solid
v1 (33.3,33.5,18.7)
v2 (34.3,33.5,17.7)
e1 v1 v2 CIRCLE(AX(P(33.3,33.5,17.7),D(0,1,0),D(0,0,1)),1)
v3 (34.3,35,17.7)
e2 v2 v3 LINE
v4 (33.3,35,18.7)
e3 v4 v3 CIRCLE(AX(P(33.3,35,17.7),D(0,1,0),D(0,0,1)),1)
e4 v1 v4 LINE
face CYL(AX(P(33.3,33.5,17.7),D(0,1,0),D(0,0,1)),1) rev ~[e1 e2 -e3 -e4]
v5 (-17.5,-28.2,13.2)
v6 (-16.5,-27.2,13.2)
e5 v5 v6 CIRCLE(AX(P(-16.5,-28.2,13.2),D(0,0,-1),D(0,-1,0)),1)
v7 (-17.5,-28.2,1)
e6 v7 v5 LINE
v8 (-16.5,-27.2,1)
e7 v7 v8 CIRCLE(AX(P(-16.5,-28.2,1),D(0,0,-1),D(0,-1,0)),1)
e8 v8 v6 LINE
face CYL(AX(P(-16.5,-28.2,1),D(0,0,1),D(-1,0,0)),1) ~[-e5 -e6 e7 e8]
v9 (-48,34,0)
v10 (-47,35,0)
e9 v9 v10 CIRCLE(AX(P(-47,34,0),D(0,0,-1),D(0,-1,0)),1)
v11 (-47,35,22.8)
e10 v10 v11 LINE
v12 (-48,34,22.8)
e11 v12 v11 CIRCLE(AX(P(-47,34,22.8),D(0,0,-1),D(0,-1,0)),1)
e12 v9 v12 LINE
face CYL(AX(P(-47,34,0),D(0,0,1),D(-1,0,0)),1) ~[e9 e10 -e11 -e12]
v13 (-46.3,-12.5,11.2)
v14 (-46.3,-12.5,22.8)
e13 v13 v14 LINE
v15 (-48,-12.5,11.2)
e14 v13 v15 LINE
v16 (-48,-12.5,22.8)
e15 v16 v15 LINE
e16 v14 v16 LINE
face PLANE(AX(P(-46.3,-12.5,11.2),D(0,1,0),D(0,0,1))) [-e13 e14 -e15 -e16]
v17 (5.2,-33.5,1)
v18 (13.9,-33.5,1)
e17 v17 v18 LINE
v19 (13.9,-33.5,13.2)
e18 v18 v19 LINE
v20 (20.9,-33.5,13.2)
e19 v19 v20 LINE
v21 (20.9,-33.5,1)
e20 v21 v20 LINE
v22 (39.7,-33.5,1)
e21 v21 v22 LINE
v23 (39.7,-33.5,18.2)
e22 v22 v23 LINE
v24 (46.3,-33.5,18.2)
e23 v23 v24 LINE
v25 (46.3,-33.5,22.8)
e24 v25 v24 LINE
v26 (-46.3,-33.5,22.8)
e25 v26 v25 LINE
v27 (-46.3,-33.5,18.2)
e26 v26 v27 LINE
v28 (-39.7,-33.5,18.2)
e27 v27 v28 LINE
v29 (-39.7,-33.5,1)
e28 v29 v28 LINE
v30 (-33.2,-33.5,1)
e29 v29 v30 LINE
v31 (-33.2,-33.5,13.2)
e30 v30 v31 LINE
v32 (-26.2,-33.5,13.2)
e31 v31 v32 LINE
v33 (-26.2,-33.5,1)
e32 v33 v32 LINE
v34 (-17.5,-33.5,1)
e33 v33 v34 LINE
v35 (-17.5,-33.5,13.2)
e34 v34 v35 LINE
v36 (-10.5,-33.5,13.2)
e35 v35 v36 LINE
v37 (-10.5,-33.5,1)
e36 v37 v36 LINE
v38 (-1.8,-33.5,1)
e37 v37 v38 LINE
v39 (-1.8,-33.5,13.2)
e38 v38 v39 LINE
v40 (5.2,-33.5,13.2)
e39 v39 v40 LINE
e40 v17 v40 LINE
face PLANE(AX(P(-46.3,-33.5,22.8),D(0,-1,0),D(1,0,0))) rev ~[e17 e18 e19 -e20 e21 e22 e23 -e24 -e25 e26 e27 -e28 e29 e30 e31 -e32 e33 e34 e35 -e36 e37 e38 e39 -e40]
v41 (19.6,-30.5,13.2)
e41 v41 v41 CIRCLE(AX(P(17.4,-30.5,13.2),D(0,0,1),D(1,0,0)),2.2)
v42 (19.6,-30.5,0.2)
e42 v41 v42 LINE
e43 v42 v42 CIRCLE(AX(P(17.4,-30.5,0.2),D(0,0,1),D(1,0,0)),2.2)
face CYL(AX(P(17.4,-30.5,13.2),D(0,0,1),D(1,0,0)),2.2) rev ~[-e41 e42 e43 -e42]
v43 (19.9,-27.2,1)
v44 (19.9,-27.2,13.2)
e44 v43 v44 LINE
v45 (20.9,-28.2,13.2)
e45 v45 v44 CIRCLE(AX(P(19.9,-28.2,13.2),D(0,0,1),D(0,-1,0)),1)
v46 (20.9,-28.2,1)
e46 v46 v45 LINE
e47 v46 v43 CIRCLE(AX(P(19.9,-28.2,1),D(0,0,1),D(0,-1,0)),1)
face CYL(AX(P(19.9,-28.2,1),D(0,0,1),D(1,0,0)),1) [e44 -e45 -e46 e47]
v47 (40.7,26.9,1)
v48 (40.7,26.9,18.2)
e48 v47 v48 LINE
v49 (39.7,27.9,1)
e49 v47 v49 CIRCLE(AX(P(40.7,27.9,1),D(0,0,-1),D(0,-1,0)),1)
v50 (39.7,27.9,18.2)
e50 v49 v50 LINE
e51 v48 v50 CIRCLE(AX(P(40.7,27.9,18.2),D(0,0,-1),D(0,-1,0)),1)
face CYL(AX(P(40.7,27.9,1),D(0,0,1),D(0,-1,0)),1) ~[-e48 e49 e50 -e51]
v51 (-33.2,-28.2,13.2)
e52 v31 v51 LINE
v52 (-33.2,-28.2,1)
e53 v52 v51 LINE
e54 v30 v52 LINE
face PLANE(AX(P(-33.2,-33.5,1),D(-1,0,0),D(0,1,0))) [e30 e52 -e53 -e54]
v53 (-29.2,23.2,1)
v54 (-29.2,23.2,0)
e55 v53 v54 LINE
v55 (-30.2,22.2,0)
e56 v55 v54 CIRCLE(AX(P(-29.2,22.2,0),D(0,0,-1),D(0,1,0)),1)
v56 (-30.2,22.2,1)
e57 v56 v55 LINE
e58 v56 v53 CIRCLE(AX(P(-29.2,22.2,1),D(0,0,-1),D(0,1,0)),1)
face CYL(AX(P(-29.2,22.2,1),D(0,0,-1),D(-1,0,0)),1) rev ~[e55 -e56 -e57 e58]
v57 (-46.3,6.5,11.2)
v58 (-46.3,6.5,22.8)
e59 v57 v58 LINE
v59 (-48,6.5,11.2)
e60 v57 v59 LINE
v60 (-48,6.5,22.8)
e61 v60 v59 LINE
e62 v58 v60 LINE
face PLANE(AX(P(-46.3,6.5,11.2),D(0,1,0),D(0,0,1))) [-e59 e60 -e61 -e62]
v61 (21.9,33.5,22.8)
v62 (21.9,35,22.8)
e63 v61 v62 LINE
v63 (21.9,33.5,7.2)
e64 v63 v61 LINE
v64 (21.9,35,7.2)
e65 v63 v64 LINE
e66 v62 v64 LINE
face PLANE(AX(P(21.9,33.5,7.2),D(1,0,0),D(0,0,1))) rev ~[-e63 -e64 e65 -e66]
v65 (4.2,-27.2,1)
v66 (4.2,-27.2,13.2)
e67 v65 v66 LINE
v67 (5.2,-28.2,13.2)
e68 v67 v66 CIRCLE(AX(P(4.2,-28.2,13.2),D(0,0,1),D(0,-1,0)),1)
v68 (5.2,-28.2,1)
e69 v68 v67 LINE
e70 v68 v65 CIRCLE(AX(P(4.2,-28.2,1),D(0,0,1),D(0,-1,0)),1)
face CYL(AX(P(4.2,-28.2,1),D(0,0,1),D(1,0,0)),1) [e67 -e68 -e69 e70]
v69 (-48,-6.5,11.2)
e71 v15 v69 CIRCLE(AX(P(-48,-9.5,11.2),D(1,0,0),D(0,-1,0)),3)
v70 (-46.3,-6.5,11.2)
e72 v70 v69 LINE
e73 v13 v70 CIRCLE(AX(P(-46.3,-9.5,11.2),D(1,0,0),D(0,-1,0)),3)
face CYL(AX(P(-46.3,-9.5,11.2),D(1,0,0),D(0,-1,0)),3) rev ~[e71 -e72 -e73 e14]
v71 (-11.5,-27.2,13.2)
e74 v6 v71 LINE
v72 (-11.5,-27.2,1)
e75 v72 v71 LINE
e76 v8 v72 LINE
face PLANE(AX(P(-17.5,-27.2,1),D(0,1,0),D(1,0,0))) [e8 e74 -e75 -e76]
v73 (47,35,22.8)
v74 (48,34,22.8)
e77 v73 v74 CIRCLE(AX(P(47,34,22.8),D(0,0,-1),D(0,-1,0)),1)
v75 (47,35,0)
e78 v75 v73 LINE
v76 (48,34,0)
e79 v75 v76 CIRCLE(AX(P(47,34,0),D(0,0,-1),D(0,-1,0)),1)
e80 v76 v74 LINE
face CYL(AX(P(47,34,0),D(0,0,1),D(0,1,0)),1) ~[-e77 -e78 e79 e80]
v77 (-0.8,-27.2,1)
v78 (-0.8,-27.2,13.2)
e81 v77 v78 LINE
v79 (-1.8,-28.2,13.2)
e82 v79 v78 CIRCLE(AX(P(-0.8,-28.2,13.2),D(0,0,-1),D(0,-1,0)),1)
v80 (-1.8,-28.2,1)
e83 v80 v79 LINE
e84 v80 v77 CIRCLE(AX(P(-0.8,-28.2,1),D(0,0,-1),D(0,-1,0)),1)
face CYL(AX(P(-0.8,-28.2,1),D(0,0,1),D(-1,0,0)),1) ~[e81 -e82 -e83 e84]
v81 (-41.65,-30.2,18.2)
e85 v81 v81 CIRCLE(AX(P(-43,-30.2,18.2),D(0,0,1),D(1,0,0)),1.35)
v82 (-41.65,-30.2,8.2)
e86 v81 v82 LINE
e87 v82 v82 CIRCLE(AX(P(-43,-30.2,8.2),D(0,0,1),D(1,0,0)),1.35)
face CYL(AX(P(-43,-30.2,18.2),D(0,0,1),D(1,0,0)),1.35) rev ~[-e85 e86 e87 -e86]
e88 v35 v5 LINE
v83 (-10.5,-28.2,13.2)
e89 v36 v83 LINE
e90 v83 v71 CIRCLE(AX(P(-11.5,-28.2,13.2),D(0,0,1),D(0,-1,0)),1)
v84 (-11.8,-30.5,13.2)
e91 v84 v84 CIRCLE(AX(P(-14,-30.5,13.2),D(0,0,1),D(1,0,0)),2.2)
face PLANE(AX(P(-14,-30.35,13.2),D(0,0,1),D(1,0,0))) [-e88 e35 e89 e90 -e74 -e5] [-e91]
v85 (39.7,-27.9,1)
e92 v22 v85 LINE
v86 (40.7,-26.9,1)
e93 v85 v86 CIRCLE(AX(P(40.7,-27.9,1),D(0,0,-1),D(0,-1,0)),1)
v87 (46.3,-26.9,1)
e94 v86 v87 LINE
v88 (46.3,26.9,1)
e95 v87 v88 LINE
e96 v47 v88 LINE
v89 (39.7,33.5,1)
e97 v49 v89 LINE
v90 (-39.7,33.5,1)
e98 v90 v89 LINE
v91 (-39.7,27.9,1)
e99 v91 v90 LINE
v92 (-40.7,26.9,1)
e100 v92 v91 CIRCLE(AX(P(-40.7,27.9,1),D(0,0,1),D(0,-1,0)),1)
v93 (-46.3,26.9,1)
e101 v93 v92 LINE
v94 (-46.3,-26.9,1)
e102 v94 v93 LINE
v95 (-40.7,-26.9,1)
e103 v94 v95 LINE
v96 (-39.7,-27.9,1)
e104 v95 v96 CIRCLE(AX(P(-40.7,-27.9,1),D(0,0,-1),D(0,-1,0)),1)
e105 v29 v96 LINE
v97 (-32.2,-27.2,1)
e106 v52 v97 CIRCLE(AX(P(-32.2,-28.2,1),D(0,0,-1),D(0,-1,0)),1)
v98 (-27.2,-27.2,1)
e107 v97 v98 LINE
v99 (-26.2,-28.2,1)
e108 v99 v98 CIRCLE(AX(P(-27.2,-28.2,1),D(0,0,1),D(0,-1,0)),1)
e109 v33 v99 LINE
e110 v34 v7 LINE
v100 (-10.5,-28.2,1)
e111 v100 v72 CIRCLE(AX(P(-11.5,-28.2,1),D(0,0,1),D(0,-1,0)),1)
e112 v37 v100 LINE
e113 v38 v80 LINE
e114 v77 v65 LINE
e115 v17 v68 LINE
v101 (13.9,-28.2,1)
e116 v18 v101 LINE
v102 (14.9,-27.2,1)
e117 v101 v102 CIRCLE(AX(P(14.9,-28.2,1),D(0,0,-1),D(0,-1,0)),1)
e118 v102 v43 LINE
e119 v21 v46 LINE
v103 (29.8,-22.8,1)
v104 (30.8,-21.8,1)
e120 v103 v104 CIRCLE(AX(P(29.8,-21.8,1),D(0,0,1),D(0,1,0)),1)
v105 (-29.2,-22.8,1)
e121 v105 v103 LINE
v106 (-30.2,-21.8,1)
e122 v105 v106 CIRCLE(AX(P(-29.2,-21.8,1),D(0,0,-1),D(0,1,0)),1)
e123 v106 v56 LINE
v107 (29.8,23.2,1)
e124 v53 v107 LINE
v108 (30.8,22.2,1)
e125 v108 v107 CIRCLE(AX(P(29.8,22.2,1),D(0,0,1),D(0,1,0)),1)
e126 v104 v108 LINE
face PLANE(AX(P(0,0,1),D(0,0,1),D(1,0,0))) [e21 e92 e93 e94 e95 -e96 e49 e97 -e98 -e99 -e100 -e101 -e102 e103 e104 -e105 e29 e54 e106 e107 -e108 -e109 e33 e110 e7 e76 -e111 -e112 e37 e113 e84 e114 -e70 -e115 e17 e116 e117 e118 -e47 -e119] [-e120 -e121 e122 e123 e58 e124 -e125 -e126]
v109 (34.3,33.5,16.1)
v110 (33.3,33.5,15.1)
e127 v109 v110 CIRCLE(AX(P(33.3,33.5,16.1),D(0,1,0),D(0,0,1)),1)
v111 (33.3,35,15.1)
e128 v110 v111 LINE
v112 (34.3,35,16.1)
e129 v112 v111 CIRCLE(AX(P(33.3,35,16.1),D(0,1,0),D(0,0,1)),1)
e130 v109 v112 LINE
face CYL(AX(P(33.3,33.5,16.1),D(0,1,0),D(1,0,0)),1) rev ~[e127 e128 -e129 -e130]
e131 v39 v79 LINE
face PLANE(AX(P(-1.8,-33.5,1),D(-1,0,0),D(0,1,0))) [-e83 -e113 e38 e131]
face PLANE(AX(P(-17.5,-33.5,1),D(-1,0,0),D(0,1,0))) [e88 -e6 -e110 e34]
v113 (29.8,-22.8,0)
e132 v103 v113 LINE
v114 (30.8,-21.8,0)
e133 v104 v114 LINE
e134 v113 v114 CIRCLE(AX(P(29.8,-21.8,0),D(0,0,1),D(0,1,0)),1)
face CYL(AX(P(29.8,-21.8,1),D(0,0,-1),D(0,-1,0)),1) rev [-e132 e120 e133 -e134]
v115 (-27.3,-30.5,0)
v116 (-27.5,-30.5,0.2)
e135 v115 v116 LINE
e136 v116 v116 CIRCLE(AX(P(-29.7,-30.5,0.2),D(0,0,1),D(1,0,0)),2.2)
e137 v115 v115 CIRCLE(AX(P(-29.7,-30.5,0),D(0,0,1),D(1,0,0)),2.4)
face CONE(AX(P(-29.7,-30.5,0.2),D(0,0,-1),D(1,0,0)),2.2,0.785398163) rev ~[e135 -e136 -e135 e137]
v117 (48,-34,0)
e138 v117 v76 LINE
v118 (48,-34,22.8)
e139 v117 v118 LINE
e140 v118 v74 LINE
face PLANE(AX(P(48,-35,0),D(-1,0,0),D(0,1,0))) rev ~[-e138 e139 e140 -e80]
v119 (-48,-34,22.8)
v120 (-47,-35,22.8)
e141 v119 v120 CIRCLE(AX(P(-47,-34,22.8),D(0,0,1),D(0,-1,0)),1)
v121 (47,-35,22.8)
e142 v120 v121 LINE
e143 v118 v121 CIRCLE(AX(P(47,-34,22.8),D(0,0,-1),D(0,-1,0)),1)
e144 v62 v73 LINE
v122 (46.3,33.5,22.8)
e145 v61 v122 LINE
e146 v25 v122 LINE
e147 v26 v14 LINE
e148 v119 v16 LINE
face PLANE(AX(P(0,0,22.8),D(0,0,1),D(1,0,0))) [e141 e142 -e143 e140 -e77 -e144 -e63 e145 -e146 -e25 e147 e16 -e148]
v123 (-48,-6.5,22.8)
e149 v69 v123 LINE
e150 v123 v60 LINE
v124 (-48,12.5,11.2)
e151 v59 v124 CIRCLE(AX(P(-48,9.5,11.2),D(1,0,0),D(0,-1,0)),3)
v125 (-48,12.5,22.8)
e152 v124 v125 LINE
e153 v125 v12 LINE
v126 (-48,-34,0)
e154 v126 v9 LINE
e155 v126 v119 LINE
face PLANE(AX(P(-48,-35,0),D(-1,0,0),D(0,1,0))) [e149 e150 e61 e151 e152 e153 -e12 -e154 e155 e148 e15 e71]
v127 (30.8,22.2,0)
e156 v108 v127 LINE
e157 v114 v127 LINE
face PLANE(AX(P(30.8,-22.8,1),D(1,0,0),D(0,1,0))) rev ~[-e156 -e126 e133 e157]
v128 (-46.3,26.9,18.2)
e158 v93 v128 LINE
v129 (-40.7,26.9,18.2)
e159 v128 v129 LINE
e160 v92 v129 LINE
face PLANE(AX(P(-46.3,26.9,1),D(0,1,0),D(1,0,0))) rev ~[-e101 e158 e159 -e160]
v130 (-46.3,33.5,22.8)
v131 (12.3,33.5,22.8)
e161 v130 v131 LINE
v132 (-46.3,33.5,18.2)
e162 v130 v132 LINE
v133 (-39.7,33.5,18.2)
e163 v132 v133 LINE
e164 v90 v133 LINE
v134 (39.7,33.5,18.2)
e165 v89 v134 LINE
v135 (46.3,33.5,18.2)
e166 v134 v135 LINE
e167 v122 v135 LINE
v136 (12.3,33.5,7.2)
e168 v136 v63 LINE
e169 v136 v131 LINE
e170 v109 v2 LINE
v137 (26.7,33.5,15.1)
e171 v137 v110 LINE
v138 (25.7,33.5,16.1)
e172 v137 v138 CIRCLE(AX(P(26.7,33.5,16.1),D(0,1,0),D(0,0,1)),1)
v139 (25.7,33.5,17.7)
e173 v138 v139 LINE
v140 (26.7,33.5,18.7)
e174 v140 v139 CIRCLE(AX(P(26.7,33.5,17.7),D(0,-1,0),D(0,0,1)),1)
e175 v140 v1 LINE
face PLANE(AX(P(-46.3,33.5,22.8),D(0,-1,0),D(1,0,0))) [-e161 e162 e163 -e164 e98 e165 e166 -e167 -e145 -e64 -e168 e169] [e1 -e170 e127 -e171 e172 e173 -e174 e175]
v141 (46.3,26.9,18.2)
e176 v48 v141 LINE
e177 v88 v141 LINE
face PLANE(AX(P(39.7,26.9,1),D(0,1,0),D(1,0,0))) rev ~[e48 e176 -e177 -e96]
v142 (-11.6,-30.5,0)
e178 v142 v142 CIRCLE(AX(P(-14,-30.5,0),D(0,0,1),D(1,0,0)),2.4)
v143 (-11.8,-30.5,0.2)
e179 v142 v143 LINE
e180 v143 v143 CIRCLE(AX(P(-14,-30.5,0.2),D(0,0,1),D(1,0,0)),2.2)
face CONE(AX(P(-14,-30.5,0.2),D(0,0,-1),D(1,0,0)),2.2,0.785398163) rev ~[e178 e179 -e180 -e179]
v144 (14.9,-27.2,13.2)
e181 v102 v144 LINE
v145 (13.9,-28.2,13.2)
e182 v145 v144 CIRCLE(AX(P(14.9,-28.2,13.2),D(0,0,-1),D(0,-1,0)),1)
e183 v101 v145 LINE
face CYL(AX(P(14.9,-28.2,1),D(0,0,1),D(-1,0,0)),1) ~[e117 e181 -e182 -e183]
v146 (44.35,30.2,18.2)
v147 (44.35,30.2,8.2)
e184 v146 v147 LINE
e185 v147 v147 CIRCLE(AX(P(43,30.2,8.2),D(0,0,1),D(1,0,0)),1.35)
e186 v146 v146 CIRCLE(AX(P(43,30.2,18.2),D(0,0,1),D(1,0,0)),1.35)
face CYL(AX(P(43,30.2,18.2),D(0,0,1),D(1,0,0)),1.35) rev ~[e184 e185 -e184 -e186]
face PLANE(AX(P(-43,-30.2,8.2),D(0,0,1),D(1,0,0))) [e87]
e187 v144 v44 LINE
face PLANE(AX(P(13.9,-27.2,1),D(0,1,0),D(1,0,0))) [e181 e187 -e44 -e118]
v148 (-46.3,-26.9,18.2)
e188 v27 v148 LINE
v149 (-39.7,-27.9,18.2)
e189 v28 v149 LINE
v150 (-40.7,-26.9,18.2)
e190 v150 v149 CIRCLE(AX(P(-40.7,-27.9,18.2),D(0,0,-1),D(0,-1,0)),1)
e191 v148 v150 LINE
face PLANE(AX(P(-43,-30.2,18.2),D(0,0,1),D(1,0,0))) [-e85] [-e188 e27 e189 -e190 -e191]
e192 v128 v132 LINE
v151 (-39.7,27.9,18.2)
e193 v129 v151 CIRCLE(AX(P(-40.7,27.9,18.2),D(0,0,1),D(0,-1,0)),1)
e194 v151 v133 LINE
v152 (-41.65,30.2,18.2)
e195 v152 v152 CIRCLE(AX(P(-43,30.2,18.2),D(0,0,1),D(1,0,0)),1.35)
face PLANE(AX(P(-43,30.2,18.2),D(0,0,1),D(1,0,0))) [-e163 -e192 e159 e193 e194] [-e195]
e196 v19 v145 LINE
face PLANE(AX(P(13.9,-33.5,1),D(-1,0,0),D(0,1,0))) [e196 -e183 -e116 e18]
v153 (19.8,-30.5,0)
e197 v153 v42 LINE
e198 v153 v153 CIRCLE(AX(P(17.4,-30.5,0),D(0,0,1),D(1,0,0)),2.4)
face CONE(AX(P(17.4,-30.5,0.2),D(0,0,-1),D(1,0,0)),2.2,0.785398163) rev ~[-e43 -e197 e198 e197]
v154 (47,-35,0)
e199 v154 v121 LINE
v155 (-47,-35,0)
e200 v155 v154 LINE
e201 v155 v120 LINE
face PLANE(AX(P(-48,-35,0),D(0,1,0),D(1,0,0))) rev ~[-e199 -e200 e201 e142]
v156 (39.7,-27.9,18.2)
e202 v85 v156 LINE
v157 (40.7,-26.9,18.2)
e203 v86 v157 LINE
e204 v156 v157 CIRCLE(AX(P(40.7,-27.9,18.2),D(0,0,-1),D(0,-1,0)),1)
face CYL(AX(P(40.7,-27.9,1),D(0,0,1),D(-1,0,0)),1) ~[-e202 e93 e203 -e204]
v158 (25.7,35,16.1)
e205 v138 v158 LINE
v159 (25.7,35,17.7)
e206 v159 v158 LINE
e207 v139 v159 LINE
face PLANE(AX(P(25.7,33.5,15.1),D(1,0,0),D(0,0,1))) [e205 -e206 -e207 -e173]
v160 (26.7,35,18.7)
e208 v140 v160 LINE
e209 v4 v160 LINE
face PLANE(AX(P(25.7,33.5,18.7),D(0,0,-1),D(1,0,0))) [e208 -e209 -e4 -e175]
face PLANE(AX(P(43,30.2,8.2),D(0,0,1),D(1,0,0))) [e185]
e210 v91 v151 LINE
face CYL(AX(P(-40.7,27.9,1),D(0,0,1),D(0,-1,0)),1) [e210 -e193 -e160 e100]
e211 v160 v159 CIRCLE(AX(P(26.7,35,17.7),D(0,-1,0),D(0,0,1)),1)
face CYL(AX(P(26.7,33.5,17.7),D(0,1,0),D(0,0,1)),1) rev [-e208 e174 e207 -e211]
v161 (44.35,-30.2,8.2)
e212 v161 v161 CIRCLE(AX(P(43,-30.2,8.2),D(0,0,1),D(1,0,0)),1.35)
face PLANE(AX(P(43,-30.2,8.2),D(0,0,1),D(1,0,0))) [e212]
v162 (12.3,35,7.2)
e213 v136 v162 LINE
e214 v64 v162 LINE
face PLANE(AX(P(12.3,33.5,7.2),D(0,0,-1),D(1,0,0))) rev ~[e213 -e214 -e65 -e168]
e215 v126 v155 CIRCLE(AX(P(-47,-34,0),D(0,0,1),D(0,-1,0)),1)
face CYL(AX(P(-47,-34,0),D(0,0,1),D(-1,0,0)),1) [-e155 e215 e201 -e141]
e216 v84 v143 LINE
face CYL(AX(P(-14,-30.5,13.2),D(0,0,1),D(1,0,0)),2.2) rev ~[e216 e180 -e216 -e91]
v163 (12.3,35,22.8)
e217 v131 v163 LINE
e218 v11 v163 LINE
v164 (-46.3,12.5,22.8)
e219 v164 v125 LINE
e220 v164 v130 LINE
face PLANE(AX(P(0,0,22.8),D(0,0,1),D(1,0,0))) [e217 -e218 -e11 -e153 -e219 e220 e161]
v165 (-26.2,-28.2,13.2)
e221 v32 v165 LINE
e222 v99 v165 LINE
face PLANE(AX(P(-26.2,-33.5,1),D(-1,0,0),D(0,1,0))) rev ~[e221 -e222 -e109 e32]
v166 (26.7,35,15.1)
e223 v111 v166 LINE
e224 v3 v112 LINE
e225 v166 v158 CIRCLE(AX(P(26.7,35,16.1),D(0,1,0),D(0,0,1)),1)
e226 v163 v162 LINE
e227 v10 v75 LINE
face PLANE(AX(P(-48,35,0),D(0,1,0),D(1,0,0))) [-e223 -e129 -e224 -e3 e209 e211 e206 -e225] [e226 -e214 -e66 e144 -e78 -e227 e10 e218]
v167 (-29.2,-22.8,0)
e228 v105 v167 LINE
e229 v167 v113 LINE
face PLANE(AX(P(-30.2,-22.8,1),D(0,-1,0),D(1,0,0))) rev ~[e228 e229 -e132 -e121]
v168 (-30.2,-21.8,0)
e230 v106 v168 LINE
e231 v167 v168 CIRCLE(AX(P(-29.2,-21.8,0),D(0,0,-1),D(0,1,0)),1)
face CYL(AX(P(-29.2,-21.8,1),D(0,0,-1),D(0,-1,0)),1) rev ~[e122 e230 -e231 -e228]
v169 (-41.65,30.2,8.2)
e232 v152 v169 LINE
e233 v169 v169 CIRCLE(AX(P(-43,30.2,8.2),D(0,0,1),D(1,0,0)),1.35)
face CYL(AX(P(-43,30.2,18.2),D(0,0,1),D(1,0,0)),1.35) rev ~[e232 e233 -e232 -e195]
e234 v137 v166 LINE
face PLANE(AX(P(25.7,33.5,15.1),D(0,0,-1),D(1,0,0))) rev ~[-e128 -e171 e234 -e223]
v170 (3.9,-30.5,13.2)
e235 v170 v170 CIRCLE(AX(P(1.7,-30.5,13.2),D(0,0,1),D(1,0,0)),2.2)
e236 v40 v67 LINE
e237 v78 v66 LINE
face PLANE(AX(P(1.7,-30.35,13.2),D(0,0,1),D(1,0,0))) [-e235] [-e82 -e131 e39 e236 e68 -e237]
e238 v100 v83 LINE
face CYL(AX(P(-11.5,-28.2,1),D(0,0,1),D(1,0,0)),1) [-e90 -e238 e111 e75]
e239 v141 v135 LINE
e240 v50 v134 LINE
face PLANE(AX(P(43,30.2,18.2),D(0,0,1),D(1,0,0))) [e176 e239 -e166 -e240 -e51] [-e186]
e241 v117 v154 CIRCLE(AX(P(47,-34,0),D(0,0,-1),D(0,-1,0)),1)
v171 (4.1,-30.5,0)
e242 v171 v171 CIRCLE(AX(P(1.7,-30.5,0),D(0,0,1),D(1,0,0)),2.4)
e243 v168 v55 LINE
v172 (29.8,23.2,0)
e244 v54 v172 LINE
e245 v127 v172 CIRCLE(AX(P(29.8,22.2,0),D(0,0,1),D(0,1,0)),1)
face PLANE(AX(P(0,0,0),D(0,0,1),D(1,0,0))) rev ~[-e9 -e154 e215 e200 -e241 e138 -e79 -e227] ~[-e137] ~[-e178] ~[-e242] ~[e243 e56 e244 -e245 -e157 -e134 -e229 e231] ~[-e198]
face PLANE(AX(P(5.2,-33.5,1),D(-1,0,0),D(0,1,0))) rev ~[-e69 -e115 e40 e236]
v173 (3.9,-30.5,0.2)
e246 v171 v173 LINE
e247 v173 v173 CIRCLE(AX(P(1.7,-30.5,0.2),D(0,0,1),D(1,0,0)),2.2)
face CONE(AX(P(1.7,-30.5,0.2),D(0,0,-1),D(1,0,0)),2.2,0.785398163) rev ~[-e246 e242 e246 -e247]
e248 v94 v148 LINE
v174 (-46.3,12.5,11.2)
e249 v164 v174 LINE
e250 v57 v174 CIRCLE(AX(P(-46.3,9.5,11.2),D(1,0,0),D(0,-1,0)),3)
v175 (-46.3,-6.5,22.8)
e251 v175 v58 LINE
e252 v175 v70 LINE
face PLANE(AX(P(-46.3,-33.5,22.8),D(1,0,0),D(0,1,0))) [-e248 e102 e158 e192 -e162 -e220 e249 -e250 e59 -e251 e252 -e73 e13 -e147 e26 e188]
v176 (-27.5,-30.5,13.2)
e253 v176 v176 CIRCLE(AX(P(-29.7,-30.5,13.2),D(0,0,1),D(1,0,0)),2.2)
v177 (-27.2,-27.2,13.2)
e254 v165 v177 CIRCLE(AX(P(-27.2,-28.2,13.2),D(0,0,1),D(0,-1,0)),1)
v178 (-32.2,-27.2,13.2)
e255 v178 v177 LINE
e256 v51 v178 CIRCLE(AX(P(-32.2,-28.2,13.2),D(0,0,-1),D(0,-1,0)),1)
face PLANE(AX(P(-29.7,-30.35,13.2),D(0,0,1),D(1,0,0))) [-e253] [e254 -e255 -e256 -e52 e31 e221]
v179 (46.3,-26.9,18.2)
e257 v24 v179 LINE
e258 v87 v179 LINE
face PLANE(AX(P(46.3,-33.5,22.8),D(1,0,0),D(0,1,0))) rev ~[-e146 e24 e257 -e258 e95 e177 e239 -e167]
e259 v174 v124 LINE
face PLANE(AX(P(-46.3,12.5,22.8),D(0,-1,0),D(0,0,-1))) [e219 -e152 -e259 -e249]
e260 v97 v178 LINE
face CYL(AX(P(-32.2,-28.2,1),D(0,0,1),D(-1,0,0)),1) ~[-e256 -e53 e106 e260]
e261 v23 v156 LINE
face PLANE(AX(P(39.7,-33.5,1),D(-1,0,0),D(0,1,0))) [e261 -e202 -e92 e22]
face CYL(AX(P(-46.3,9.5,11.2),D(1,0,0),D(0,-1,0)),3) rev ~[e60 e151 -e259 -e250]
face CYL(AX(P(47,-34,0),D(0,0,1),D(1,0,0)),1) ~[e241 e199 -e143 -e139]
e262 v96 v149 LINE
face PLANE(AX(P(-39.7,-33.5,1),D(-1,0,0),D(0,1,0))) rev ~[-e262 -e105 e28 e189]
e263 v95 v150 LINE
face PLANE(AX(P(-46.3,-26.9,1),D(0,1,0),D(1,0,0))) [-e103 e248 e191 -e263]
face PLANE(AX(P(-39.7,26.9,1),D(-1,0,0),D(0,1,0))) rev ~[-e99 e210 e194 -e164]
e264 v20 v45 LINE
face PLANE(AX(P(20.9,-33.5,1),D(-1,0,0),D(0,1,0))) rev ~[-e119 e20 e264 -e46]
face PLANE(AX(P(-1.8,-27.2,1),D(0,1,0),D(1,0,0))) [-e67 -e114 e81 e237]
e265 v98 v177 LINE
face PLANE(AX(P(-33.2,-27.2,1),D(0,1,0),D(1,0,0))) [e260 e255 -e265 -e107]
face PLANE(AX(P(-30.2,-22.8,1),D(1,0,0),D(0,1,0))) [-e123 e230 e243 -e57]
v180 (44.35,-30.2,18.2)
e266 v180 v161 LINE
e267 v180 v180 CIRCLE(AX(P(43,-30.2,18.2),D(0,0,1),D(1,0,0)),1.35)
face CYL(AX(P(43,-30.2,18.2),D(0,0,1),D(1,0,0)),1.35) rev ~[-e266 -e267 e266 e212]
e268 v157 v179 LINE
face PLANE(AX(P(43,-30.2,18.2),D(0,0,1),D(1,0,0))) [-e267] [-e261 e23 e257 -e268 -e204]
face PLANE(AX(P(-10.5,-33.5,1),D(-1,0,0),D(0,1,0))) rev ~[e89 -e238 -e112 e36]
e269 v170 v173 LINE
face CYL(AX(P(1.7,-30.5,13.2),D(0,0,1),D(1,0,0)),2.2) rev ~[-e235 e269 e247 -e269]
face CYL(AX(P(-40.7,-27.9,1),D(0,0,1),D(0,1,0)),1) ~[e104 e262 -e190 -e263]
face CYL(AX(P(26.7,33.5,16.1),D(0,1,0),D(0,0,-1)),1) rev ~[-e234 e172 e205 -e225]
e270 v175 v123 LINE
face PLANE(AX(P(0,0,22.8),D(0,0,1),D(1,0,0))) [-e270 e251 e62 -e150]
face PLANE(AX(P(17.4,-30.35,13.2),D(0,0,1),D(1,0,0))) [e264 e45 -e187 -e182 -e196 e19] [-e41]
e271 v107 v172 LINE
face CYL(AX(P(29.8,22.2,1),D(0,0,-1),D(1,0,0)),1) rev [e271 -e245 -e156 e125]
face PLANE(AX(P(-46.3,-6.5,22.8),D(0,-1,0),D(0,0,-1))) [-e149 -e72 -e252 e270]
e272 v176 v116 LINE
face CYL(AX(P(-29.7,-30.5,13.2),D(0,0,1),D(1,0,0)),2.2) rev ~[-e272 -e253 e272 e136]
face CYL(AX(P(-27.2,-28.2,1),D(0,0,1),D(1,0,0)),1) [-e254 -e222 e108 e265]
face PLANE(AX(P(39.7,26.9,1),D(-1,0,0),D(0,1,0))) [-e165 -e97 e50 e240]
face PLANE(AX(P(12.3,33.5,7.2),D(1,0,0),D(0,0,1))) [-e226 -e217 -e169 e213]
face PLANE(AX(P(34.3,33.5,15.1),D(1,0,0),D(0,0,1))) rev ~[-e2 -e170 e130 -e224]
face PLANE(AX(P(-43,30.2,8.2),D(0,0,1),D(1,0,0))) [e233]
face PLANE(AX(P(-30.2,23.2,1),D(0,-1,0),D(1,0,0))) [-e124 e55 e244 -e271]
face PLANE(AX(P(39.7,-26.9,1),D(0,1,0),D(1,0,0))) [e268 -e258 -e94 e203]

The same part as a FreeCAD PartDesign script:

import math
import FreeCAD as App
import Part
import Sketcher

V = App.Vector


def edges_at(feature, points):
    """Names of the edges that pass closest to the given points."""
    edges = feature.Shape.Edges
    near = lambda p: min(range(len(edges)), key=lambda i: edges[i].distToShape(Part.Vertex(*p))[0])
    return sorted({f"Edge{near(p) + 1}" for p in points})

doc = App.newDocument("Part")
body = doc.addObject("PartDesign::Body", "Body")

sketch1 = body.newObject("Sketcher::SketchObject", "Sketch")
sketch1.AttachmentSupport = (doc.getObject("XY_Plane"), [""])
sketch1.MapMode = "FlatFace"
sketch1.addGeometry([
    Part.LineSegment(V(-48, 35, 0), V(-48, -35, 0)),
    Part.LineSegment(V(-48, -35, 0), V(48, -35, 0)),
    Part.LineSegment(V(48, -35, 0), V(48, 35, 0)),
    Part.LineSegment(V(48, 35, 0), V(-48, 35, 0)),
], False)
sketch1.addConstraint([
    Sketcher.Constraint("Coincident", 0, 2, 1, 1),
    Sketcher.Constraint("Coincident", 1, 2, 2, 1),
    Sketcher.Constraint("Coincident", 2, 2, 3, 1),
    Sketcher.Constraint("Coincident", 3, 2, 0, 1),
    Sketcher.Constraint("Vertical", 0),
    Sketcher.Constraint("Horizontal", 1),
    Sketcher.Constraint("Vertical", 2),
    Sketcher.Constraint("Horizontal", 3),
    Sketcher.Constraint("Symmetric", 0, 2, 2, 2, -1, 1),
    Sketcher.Constraint("DistanceX", 1, 1, 1, 2, 96.0),
    Sketcher.Constraint("DistanceY", 0, 2, 0, 1, 70.0),
])
pad1 = body.newObject("PartDesign::Pad", "Pad")
pad1.Profile = sketch1
pad1.Length = 22.8

sketch2 = body.newObject("Sketcher::SketchObject", "Sketch001")
sketch2.AttachmentSupport = (doc.getObject("XY_Plane"), [""])
sketch2.MapMode = "FlatFace"
sketch2.AttachmentOffset = App.Placement(V(0, 0, 22.8), App.Rotation())
sketch2.addGeometry([
    Part.LineSegment(V(-46, 34, 0), V(-46, -34, 0)),
    Part.LineSegment(V(-46, -34, 0), V(46, -34, 0)),
    Part.LineSegment(V(46, -34, 0), V(46, 34, 0)),
    Part.LineSegment(V(46, 34, 0), V(-46, 34, 0)),
], False)
sketch2.addConstraint([
    Sketcher.Constraint("Coincident", 0, 2, 1, 1),
    Sketcher.Constraint("Coincident", 1, 2, 2, 1),
    Sketcher.Constraint("Coincident", 2, 2, 3, 1),
    Sketcher.Constraint("Coincident", 3, 2, 0, 1),
    Sketcher.Constraint("Vertical", 0),
    Sketcher.Constraint("Horizontal", 1),
    Sketcher.Constraint("Vertical", 2),
    Sketcher.Constraint("Horizontal", 3),
    Sketcher.Constraint("Symmetric", 0, 2, 2, 2, -1, 1),
    Sketcher.Constraint("DistanceY", 0, 2, 0, 1, 67.0),
    Sketcher.Constraint("DistanceX", 1, 1, 1, 2, 92.6),
])
pocket1 = body.newObject("PartDesign::Pocket", "Pocket")
pocket1.Profile = sketch2
pocket1.Length = 21.8

sketch3 = body.newObject("Sketcher::SketchObject", "Sketch002")
sketch3.AttachmentSupport = (doc.getObject("XY_Plane"), [""])
sketch3.MapMode = "FlatFace"
sketch3.AttachmentOffset = App.Placement(V(0, 0, 1), App.Rotation())
sketch3.addGeometry([
    Part.LineSegment(V(-46, 34, 0), V(-46, 27, 0)),
    Part.LineSegment(V(-46, 27, 0), V(-40, 27, 0)),
    Part.LineSegment(V(-40, 27, 0), V(-40, 34, 0)),
    Part.LineSegment(V(-40, 34, 0), V(-46, 34, 0)),
    Part.LineSegment(V(40, 34, 0), V(40, 27, 0)),
    Part.LineSegment(V(40, 27, 0), V(46, 27, 0)),
    Part.LineSegment(V(46, 27, 0), V(46, 34, 0)),
    Part.LineSegment(V(46, 34, 0), V(40, 34, 0)),
    Part.LineSegment(V(40, -27, 0), V(40, -34, 0)),
    Part.LineSegment(V(40, -34, 0), V(46, -34, 0)),
    Part.LineSegment(V(46, -34, 0), V(46, -27, 0)),
    Part.LineSegment(V(46, -27, 0), V(40, -27, 0)),
    Part.LineSegment(V(-46, -27, 0), V(-46, -34, 0)),
    Part.LineSegment(V(-46, -34, 0), V(-40, -34, 0)),
    Part.LineSegment(V(-40, -34, 0), V(-40, -27, 0)),
    Part.LineSegment(V(-40, -27, 0), V(-46, -27, 0)),
], False)
sketch3.addConstraint([
    Sketcher.Constraint("Coincident", 0, 2, 1, 1),
    Sketcher.Constraint("Coincident", 1, 2, 2, 1),
    Sketcher.Constraint("Coincident", 2, 2, 3, 1),
    Sketcher.Constraint("Coincident", 3, 2, 0, 1),
    Sketcher.Constraint("Coincident", 4, 2, 5, 1),
    Sketcher.Constraint("Coincident", 5, 2, 6, 1),
    Sketcher.Constraint("Coincident", 6, 2, 7, 1),
    Sketcher.Constraint("Coincident", 7, 2, 4, 1),
    Sketcher.Constraint("Coincident", 8, 2, 9, 1),
    Sketcher.Constraint("Coincident", 9, 2, 10, 1),
    Sketcher.Constraint("Coincident", 10, 2, 11, 1),
    Sketcher.Constraint("Coincident", 11, 2, 8, 1),
    Sketcher.Constraint("Coincident", 12, 2, 13, 1),
    Sketcher.Constraint("Coincident", 13, 2, 14, 1),
    Sketcher.Constraint("Coincident", 14, 2, 15, 1),
    Sketcher.Constraint("Coincident", 15, 2, 12, 1),
    Sketcher.Constraint("Vertical", 0),
    Sketcher.Constraint("Horizontal", 1),
    Sketcher.Constraint("Vertical", 2),
    Sketcher.Constraint("Horizontal", 3),
    Sketcher.Constraint("Vertical", 4),
    Sketcher.Constraint("Horizontal", 5),
    Sketcher.Constraint("Vertical", 6),
    Sketcher.Constraint("Horizontal", 7),
    Sketcher.Constraint("Vertical", 8),
    Sketcher.Constraint("Horizontal", 9),
    Sketcher.Constraint("Vertical", 10),
    Sketcher.Constraint("Horizontal", 11),
    Sketcher.Constraint("Vertical", 12),
    Sketcher.Constraint("Horizontal", 13),
    Sketcher.Constraint("Vertical", 14),
    Sketcher.Constraint("Horizontal", 15),
    Sketcher.Constraint("Symmetric", 2, 2, 8, 2, -1, 1),
    Sketcher.Constraint("Symmetric", 0, 2, 10, 2, -1, 1),
    Sketcher.Constraint("Symmetric", 6, 2, 12, 2, -1, 1),
    Sketcher.Constraint("Symmetric", 4, 2, 14, 2, -1, 1),
    Sketcher.Constraint("Symmetric", 1, 2, 4, 2, -2),
    Sketcher.Constraint("Symmetric", 3, 2, 6, 2, -2),
    Sketcher.Constraint("Equal", 15, 0),
    Sketcher.Constraint("DistanceX", 1, 1, 1, 2, 6.6),
    Sketcher.Constraint("DistanceX", 0, 2, 4, 2, 86.0),
    Sketcher.Constraint("DistanceY", 8, 2, 7, 2, 67.0),
])
pad2 = body.newObject("PartDesign::Pad", "Pad001")
pad2.Profile = sketch3
pad2.Length = 17.2

sketch4 = body.newObject("Sketcher::SketchObject", "Sketch003")
sketch4.AttachmentSupport = (doc.getObject("XY_Plane"), [""])
sketch4.MapMode = "FlatFace"
sketch4.AttachmentOffset = App.Placement(V(0, 0, 1), App.Rotation())
sketch4.addGeometry([
    Part.LineSegment(V(-30, 23, 0), V(-30, -23, 0)),
    Part.LineSegment(V(-30, -23, 0), V(31, -23, 0)),
    Part.LineSegment(V(31, -23, 0), V(31, 23, 0)),
    Part.LineSegment(V(31, 23, 0), V(-30, 23, 0)),
], False)
sketch4.addConstraint([
    Sketcher.Constraint("Coincident", 0, 2, 1, 1),
    Sketcher.Constraint("Coincident", 1, 2, 2, 1),
    Sketcher.Constraint("Coincident", 2, 2, 3, 1),
    Sketcher.Constraint("Coincident", 3, 2, 0, 1),
    Sketcher.Constraint("Vertical", 0),
    Sketcher.Constraint("Horizontal", 1),
    Sketcher.Constraint("Vertical", 2),
    Sketcher.Constraint("Horizontal", 3),
    Sketcher.Constraint("DistanceX", 1, 1, 1, 2, 61.0),
    Sketcher.Constraint("DistanceY", 0, 2, 0, 1, 46.0),
    Sketcher.Constraint("DistanceX", 0, 2, -1, 1, 30.2),
    Sketcher.Constraint("DistanceY", 0, 2, -1, 1, 22.8),
])
pocket2 = body.newObject("PartDesign::Pocket", "Pocket001")
pocket2.Profile = sketch4
pocket2.Type = "ThroughAll"

sketch5 = body.newObject("Sketcher::SketchObject", "Sketch004")
sketch5.AttachmentSupport = (doc.getObject("XY_Plane"), [""])
sketch5.MapMode = "FlatFace"
sketch5.AttachmentOffset = App.Placement(V(0, 0, 18.2), App.Rotation())
sketch5.addGeometry(Part.Circle(V(-43, 30.2, 0), V(0, 0, 1), 1.4), False)
sketch5.addConstraint([
    Sketcher.Constraint("Diameter", 0, 2.7),
    Sketcher.Constraint("DistanceX", 0, 3, -1, 1, 43.0),
    Sketcher.Constraint("DistanceY", -1, 1, 0, 3, 30.2),
])
pocket3 = body.newObject("PartDesign::Pocket", "Pocket002")
pocket3.Profile = sketch5
pocket3.Length = 10

sketch6 = body.newObject("Sketcher::SketchObject", "Sketch005")
sketch6.AttachmentSupport = (doc.getObject("XY_Plane"), [""])
sketch6.MapMode = "FlatFace"
sketch6.AttachmentOffset = App.Placement(V(0, 0, 18.2), App.Rotation())
sketch6.addGeometry(Part.Circle(V(43, 30.2, 0), V(0, 0, 1), 1.4), False)
sketch6.addConstraint([
    Sketcher.Constraint("Diameter", 0, 2.7),
    Sketcher.Constraint("DistanceX", -1, 1, 0, 3, 43.0),
    Sketcher.Constraint("DistanceY", -1, 1, 0, 3, 30.2),
])
pocket4 = body.newObject("PartDesign::Pocket", "Pocket003")
pocket4.Profile = sketch6
pocket4.Length = 10

sketch7 = body.newObject("Sketcher::SketchObject", "Sketch006")
sketch7.AttachmentSupport = (doc.getObject("XY_Plane"), [""])
sketch7.MapMode = "FlatFace"
sketch7.AttachmentOffset = App.Placement(V(0, 0, 18.2), App.Rotation())
sketch7.addGeometry(Part.Circle(V(-43, -30.2, 0), V(0, 0, 1), 1.4), False)
sketch7.addConstraint([
    Sketcher.Constraint("Diameter", 0, 2.7),
    Sketcher.Constraint("DistanceX", 0, 3, -1, 1, 43.0),
    Sketcher.Constraint("DistanceY", 0, 3, -1, 1, 30.2),
])
pocket5 = body.newObject("PartDesign::Pocket", "Pocket004")
pocket5.Profile = sketch7
pocket5.Length = 10

sketch8 = body.newObject("Sketcher::SketchObject", "Sketch007")
sketch8.AttachmentSupport = (doc.getObject("XY_Plane"), [""])
sketch8.MapMode = "FlatFace"
sketch8.AttachmentOffset = App.Placement(V(0, 0, 18.2), App.Rotation())
sketch8.addGeometry(Part.Circle(V(43, -30.2, 0), V(0, 0, 1), 1.4), False)
sketch8.addConstraint([
    Sketcher.Constraint("Diameter", 0, 2.7),
    Sketcher.Constraint("DistanceX", -1, 1, 0, 3, 43.0),
    Sketcher.Constraint("DistanceY", 0, 3, -1, 1, 30.2),
])
pocket6 = body.newObject("PartDesign::Pocket", "Pocket005")
pocket6.Profile = sketch8
pocket6.Length = 10

sketch9 = body.newObject("Sketcher::SketchObject", "Sketch008")
sketch9.AttachmentSupport = (doc.getObject("YZ_Plane"), [""])
sketch9.MapMode = "FlatFace"
sketch9.AttachmentOffset = App.Placement(V(0, 0, -46.3), App.Rotation())
sketch9.addGeometry([
    Part.LineSegment(V(-6.5, 22.8, 0), V(-12.5, 22.8, 0)),
    Part.LineSegment(V(-12.5, 22.8, 0), V(-12.5, 11.2, 0)),
    Part.ArcOfCircle(Part.Circle(V(-9.5, 11.2, 0), V(0, 0, 1), 3), math.radians(180), math.radians(360)),
    Part.LineSegment(V(-6.5, 11.2, 0), V(-6.5, 22.8, 0)),
    Part.LineSegment(V(12.5, 22.8, 0), V(6.5, 22.8, 0)),
    Part.LineSegment(V(6.5, 22.8, 0), V(6.5, 11.2, 0)),
    Part.ArcOfCircle(Part.Circle(V(9.5, 11.2, 0), V(0, 0, 1), 3), math.radians(180), math.radians(360)),
    Part.LineSegment(V(12.5, 11.2, 0), V(12.5, 22.8, 0)),
], False)
sketch9.addConstraint([
    Sketcher.Constraint("Coincident", 0, 2, 1, 1),
    Sketcher.Constraint("Tangent", 1, 2, 2, 1),
    Sketcher.Constraint("Tangent", 2, 2, 3, 1),
    Sketcher.Constraint("Coincident", 3, 2, 0, 1),
    Sketcher.Constraint("Coincident", 4, 2, 5, 1),
    Sketcher.Constraint("Tangent", 5, 2, 6, 1),
    Sketcher.Constraint("Tangent", 6, 2, 7, 1),
    Sketcher.Constraint("Coincident", 7, 2, 4, 1),
    Sketcher.Constraint("Horizontal", 0),
    Sketcher.Constraint("Vertical", 1),
    Sketcher.Constraint("Vertical", 3),
    Sketcher.Constraint("Horizontal", 4),
    Sketcher.Constraint("Vertical", 5),
    Sketcher.Constraint("Vertical", 7),
    Sketcher.Constraint("Equal", 2, 6),
    Sketcher.Constraint("Symmetric", 2, 3, 6, 3, -2),
    Sketcher.Constraint("Horizontal", 3, 2, 4, 2),
    Sketcher.Constraint("Radius", 2, 3.0),
    Sketcher.Constraint("DistanceY", 1, 2, 1, 1, 11.6),
    Sketcher.Constraint("DistanceX", 2, 3, 6, 3, 19.0),
    Sketcher.Constraint("DistanceY", -1, 1, 2, 3, 11.2),
])
pocket7 = body.newObject("PartDesign::Pocket", "Pocket006")
pocket7.Profile = sketch9
pocket7.Type = "ThroughAll"

sketch10 = body.newObject("Sketcher::SketchObject", "Sketch009")
sketch10.AttachmentSupport = (doc.getObject("XY_Plane"), [""])
sketch10.MapMode = "FlatFace"
sketch10.AttachmentOffset = App.Placement(V(0, 0, 1), App.Rotation())
sketch10.addGeometry([
    Part.LineSegment(V(-33, -27, 0), V(-33, -34, 0)),
    Part.LineSegment(V(-33, -34, 0), V(-26, -34, 0)),
    Part.LineSegment(V(-26, -34, 0), V(-26, -27, 0)),
    Part.LineSegment(V(-26, -27, 0), V(-33, -27, 0)),
    Part.LineSegment(V(-18, -27, 0), V(-18, -34, 0)),
    Part.LineSegment(V(-18, -34, 0), V(-10, -34, 0)),
    Part.LineSegment(V(-10, -34, 0), V(-10, -27, 0)),
    Part.LineSegment(V(-10, -27, 0), V(-18, -27, 0)),
    Part.LineSegment(V(-2, -27, 0), V(-2, -34, 0)),
    Part.LineSegment(V(-2, -34, 0), V(5, -34, 0)),
    Part.LineSegment(V(5, -34, 0), V(5, -27, 0)),
    Part.LineSegment(V(5, -27, 0), V(-2, -27, 0)),
    Part.LineSegment(V(14, -27, 0), V(14, -34, 0)),
    Part.LineSegment(V(14, -34, 0), V(21, -34, 0)),
    Part.LineSegment(V(21, -34, 0), V(21, -27, 0)),
    Part.LineSegment(V(21, -27, 0), V(14, -27, 0)),
], False)
sketch10.addConstraint([
    Sketcher.Constraint("Coincident", 0, 2, 1, 1),
    Sketcher.Constraint("Coincident", 1, 2, 2, 1),
    Sketcher.Constraint("Coincident", 2, 2, 3, 1),
    Sketcher.Constraint("Coincident", 3, 2, 0, 1),
    Sketcher.Constraint("Coincident", 4, 2, 5, 1),
    Sketcher.Constraint("Coincident", 5, 2, 6, 1),
    Sketcher.Constraint("Coincident", 6, 2, 7, 1),
    Sketcher.Constraint("Coincident", 7, 2, 4, 1),
    Sketcher.Constraint("Coincident", 8, 2, 9, 1),
    Sketcher.Constraint("Coincident", 9, 2, 10, 1),
    Sketcher.Constraint("Coincident", 10, 2, 11, 1),
    Sketcher.Constraint("Coincident", 11, 2, 8, 1),
    Sketcher.Constraint("Coincident", 12, 2, 13, 1),
    Sketcher.Constraint("Coincident", 13, 2, 14, 1),
    Sketcher.Constraint("Coincident", 14, 2, 15, 1),
    Sketcher.Constraint("Coincident", 15, 2, 12, 1),
    Sketcher.Constraint("Vertical", 0),
    Sketcher.Constraint("Horizontal", 1),
    Sketcher.Constraint("Vertical", 2),
    Sketcher.Constraint("Horizontal", 3),
    Sketcher.Constraint("Vertical", 4),
    Sketcher.Constraint("Horizontal", 5),
    Sketcher.Constraint("Vertical", 6),
    Sketcher.Constraint("Horizontal", 7),
    Sketcher.Constraint("Vertical", 8),
    Sketcher.Constraint("Horizontal", 9),
    Sketcher.Constraint("Vertical", 10),
    Sketcher.Constraint("Horizontal", 11),
    Sketcher.Constraint("Vertical", 12),
    Sketcher.Constraint("Horizontal", 13),
    Sketcher.Constraint("Vertical", 14),
    Sketcher.Constraint("Horizontal", 15),
    Sketcher.Constraint("Horizontal", 1, 2, 4, 2),
    Sketcher.Constraint("Horizontal", 3, 2, 6, 2),
    Sketcher.Constraint("Horizontal", 5, 2, 8, 2),
    Sketcher.Constraint("Horizontal", 7, 2, 10, 2),
    Sketcher.Constraint("Horizontal", 9, 2, 12, 2),
    Sketcher.Constraint("Horizontal", 11, 2, 14, 2),
    Sketcher.Constraint("Equal", 3, 5),
    Sketcher.Constraint("Equal", 7, 9),
    Sketcher.Constraint("Equal", 11, 13),
    Sketcher.Constraint("DistanceX", 1, 1, 1, 2, 7.0),
    Sketcher.Constraint("DistanceY", 0, 2, 0, 1, 6.3),
    Sketcher.Constraint("DistanceX", 0, 2, -1, 1, 33.2),
    Sketcher.Constraint("DistanceY", 0, 2, -1, 1, 33.5),
    Sketcher.Constraint("DistanceX", 4, 2, -1, 1, 17.5),
    Sketcher.Constraint("DistanceX", 8, 2, -1, 1, 1.8),
    Sketcher.Constraint("DistanceX", -1, 1, 12, 2, 13.9),
])
pad3 = body.newObject("PartDesign::Pad", "Pad002")
pad3.Profile = sketch10
pad3.Length = 12.2

sketch11 = body.newObject("Sketcher::SketchObject", "Sketch010")
sketch11.AttachmentSupport = (doc.getObject("XY_Plane"), [""])
sketch11.MapMode = "FlatFace"
sketch11.AttachmentOffset = App.Placement(V(0, 0, 13.2), App.Rotation())
sketch11.addGeometry(Part.Circle(V(-29.7, -30.5, 0), V(0, 0, 1), 2.2), False)
sketch11.addConstraint([
    Sketcher.Constraint("Diameter", 0, 4.4),
    Sketcher.Constraint("DistanceX", 0, 3, -1, 1, 29.7),
    Sketcher.Constraint("DistanceY", 0, 3, -1, 1, 30.5),
])
pocket8 = body.newObject("PartDesign::Pocket", "Pocket007")
pocket8.Profile = sketch11
pocket8.Type = "ThroughAll"

sketch12 = body.newObject("Sketcher::SketchObject", "Sketch011")
sketch12.AttachmentSupport = (doc.getObject("XY_Plane"), [""])
sketch12.MapMode = "FlatFace"
sketch12.AttachmentOffset = App.Placement(V(0, 0, 13.2), App.Rotation())
sketch12.addGeometry(Part.Circle(V(-14, -30.5, 0), V(0, 0, 1), 2.2), False)
sketch12.addConstraint([
    Sketcher.Constraint("Diameter", 0, 4.4),
    Sketcher.Constraint("DistanceX", 0, 3, -1, 1, 14.0),
    Sketcher.Constraint("DistanceY", 0, 3, -1, 1, 30.5),
])
pocket9 = body.newObject("PartDesign::Pocket", "Pocket008")
pocket9.Profile = sketch12
pocket9.Type = "ThroughAll"

sketch13 = body.newObject("Sketcher::SketchObject", "Sketch012")
sketch13.AttachmentSupport = (doc.getObject("XY_Plane"), [""])
sketch13.MapMode = "FlatFace"
sketch13.AttachmentOffset = App.Placement(V(0, 0, 13.2), App.Rotation())
sketch13.addGeometry(Part.Circle(V(1.7, -30.5, 0), V(0, 0, 1), 2.2), False)
sketch13.addConstraint([
    Sketcher.Constraint("Diameter", 0, 4.4),
    Sketcher.Constraint("DistanceX", -1, 1, 0, 3, 1.7),
    Sketcher.Constraint("DistanceY", 0, 3, -1, 1, 30.5),
])
pocket10 = body.newObject("PartDesign::Pocket", "Pocket009")
pocket10.Profile = sketch13
pocket10.Type = "ThroughAll"

sketch14 = body.newObject("Sketcher::SketchObject", "Sketch013")
sketch14.AttachmentSupport = (doc.getObject("XY_Plane"), [""])
sketch14.MapMode = "FlatFace"
sketch14.AttachmentOffset = App.Placement(V(0, 0, 13.2), App.Rotation())
sketch14.addGeometry(Part.Circle(V(17.4, -30.5, 0), V(0, 0, 1), 2.2), False)
sketch14.addConstraint([
    Sketcher.Constraint("Diameter", 0, 4.4),
    Sketcher.Constraint("DistanceX", -1, 1, 0, 3, 17.4),
    Sketcher.Constraint("DistanceY", 0, 3, -1, 1, 30.5),
])
pocket11 = body.newObject("PartDesign::Pocket", "Pocket010")
pocket11.Profile = sketch14
pocket11.Type = "ThroughAll"

sketch15 = body.newObject("Sketcher::SketchObject", "Sketch014")
sketch15.AttachmentSupport = (doc.getObject("XZ_Plane"), [""])
sketch15.MapMode = "FlatFace"
sketch15.AttachmentOffset = App.Placement(V(0, 0, -33.5), App.Rotation())
sketch15.addGeometry([
    Part.LineSegment(V(12, 23, 0), V(12, 7, 0)),
    Part.LineSegment(V(12, 7, 0), V(22, 7, 0)),
    Part.LineSegment(V(22, 7, 0), V(22, 23, 0)),
    Part.LineSegment(V(22, 23, 0), V(12, 23, 0)),
], False)
sketch15.addConstraint([
    Sketcher.Constraint("Coincident", 0, 2, 1, 1),
    Sketcher.Constraint("Coincident", 1, 2, 2, 1),
    Sketcher.Constraint("Coincident", 2, 2, 3, 1),
    Sketcher.Constraint("Coincident", 3, 2, 0, 1),
    Sketcher.Constraint("Vertical", 0),
    Sketcher.Constraint("Horizontal", 1),
    Sketcher.Constraint("Vertical", 2),
    Sketcher.Constraint("Horizontal", 3),
    Sketcher.Constraint("DistanceX", 1, 1, 1, 2, 9.6),
    Sketcher.Constraint("DistanceY", 0, 2, 0, 1, 15.6),
    Sketcher.Constraint("DistanceX", -1, 1, 0, 2, 12.3),
    Sketcher.Constraint("DistanceY", -1, 1, 0, 2, 7.2),
])
pocket12 = body.newObject("PartDesign::Pocket", "Pocket011")
pocket12.Profile = sketch15
pocket12.Type = "ThroughAll"

sketch16 = body.newObject("Sketcher::SketchObject", "Sketch015")
sketch16.AttachmentSupport = (doc.getObject("XZ_Plane"), [""])
sketch16.MapMode = "FlatFace"
sketch16.AttachmentOffset = App.Placement(V(0, 0, -33.5), App.Rotation())
sketch16.addGeometry([
    Part.LineSegment(V(25.7, 18.7, 0), V(25.7, 15.1, 0)),
    Part.LineSegment(V(25.7, 15.1, 0), V(34.3, 15.1, 0)),
    Part.LineSegment(V(34.3, 15.1, 0), V(34.3, 18.7, 0)),
    Part.LineSegment(V(34.3, 18.7, 0), V(25.7, 18.7, 0)),
], False)
sketch16.addConstraint([
    Sketcher.Constraint("Coincident", 0, 2, 1, 1),
    Sketcher.Constraint("Coincident", 1, 2, 2, 1),
    Sketcher.Constraint("Coincident", 2, 2, 3, 1),
    Sketcher.Constraint("Coincident", 3, 2, 0, 1),
    Sketcher.Constraint("Vertical", 0),
    Sketcher.Constraint("Horizontal", 1),
    Sketcher.Constraint("Vertical", 2),
    Sketcher.Constraint("Horizontal", 3),
    Sketcher.Constraint("DistanceX", 1, 1, 1, 2, 8.6),
    Sketcher.Constraint("DistanceY", 0, 2, 0, 1, 3.6),
    Sketcher.Constraint("DistanceX", -1, 1, 0, 2, 25.7),
    Sketcher.Constraint("DistanceY", -1, 1, 0, 2, 15.1),
])
pocket13 = body.newObject("PartDesign::Pocket", "Pocket012")
pocket13.Profile = sketch16
pocket13.Type = "ThroughAll"
doc.recompute()

fillet = body.newObject("PartDesign::Fillet", "Fillet")
fillet.Base = (pocket13, edges_at(pocket13, [
    (48, 35, 11.4),
    (-48, 35, 11.4),
    (-48, -35, 11.4),
    (48, -35, 11.4),
]))
fillet.Radius = 1
doc.recompute()

fillet2 = body.newObject("PartDesign::Fillet", "Fillet001")
fillet2.Base = (fillet, edges_at(fillet, [
    (-39.7, 26.9, 9.6),
    (39.7, 26.9, 9.6),
    (39.7, -26.9, 9.6),
    (20.9, -27.2, 7.1),
    (13.9, -27.2, 7.1),
    (5.2, -27.2, 7.1),
    (-1.8, -27.2, 7.1),
    (-10.5, -27.2, 7.1),
    (-17.5, -27.2, 7.1),
    (-26.2, -27.2, 7.1),
    (-33.2, -27.2, 7.1),
    (-39.7, -26.9, 9.6),
]))
fillet2.Radius = 1
doc.recompute()

chamfer = body.newObject("PartDesign::Chamfer", "Chamfer")
chamfer.Base = (fillet2, edges_at(fillet2, [
    (15.2, -30.5, 0),
    (-0.5, -30.5, 0),
    (-16.2, -30.5, 0),
    (-31.9, -30.5, 0),
]))
chamfer.Size = 0.2
doc.recompute()

fillet3 = body.newObject("PartDesign::Fillet", "Fillet002")
fillet3.Base = (chamfer, edges_at(chamfer, [
    (34.3, 34.25, 15.1),
    (34.3, 34.25, 18.7),
    (25.7, 34.25, 18.7),
    (25.7, 34.25, 15.1),
]))
fillet3.Radius = 1
doc.recompute()

fillet4 = body.newObject("PartDesign::Fillet", "Fillet003")
fillet4.Base = (fillet3, edges_at(fillet3, [
    (-30.2, 23.2, 0.5),
    (30.8, 23.2, 0.5),
    (30.8, -22.8, 0.5),
    (-30.2, -22.8, 0.5),
]))
fillet4.Radius = 1

doc.recompute()
